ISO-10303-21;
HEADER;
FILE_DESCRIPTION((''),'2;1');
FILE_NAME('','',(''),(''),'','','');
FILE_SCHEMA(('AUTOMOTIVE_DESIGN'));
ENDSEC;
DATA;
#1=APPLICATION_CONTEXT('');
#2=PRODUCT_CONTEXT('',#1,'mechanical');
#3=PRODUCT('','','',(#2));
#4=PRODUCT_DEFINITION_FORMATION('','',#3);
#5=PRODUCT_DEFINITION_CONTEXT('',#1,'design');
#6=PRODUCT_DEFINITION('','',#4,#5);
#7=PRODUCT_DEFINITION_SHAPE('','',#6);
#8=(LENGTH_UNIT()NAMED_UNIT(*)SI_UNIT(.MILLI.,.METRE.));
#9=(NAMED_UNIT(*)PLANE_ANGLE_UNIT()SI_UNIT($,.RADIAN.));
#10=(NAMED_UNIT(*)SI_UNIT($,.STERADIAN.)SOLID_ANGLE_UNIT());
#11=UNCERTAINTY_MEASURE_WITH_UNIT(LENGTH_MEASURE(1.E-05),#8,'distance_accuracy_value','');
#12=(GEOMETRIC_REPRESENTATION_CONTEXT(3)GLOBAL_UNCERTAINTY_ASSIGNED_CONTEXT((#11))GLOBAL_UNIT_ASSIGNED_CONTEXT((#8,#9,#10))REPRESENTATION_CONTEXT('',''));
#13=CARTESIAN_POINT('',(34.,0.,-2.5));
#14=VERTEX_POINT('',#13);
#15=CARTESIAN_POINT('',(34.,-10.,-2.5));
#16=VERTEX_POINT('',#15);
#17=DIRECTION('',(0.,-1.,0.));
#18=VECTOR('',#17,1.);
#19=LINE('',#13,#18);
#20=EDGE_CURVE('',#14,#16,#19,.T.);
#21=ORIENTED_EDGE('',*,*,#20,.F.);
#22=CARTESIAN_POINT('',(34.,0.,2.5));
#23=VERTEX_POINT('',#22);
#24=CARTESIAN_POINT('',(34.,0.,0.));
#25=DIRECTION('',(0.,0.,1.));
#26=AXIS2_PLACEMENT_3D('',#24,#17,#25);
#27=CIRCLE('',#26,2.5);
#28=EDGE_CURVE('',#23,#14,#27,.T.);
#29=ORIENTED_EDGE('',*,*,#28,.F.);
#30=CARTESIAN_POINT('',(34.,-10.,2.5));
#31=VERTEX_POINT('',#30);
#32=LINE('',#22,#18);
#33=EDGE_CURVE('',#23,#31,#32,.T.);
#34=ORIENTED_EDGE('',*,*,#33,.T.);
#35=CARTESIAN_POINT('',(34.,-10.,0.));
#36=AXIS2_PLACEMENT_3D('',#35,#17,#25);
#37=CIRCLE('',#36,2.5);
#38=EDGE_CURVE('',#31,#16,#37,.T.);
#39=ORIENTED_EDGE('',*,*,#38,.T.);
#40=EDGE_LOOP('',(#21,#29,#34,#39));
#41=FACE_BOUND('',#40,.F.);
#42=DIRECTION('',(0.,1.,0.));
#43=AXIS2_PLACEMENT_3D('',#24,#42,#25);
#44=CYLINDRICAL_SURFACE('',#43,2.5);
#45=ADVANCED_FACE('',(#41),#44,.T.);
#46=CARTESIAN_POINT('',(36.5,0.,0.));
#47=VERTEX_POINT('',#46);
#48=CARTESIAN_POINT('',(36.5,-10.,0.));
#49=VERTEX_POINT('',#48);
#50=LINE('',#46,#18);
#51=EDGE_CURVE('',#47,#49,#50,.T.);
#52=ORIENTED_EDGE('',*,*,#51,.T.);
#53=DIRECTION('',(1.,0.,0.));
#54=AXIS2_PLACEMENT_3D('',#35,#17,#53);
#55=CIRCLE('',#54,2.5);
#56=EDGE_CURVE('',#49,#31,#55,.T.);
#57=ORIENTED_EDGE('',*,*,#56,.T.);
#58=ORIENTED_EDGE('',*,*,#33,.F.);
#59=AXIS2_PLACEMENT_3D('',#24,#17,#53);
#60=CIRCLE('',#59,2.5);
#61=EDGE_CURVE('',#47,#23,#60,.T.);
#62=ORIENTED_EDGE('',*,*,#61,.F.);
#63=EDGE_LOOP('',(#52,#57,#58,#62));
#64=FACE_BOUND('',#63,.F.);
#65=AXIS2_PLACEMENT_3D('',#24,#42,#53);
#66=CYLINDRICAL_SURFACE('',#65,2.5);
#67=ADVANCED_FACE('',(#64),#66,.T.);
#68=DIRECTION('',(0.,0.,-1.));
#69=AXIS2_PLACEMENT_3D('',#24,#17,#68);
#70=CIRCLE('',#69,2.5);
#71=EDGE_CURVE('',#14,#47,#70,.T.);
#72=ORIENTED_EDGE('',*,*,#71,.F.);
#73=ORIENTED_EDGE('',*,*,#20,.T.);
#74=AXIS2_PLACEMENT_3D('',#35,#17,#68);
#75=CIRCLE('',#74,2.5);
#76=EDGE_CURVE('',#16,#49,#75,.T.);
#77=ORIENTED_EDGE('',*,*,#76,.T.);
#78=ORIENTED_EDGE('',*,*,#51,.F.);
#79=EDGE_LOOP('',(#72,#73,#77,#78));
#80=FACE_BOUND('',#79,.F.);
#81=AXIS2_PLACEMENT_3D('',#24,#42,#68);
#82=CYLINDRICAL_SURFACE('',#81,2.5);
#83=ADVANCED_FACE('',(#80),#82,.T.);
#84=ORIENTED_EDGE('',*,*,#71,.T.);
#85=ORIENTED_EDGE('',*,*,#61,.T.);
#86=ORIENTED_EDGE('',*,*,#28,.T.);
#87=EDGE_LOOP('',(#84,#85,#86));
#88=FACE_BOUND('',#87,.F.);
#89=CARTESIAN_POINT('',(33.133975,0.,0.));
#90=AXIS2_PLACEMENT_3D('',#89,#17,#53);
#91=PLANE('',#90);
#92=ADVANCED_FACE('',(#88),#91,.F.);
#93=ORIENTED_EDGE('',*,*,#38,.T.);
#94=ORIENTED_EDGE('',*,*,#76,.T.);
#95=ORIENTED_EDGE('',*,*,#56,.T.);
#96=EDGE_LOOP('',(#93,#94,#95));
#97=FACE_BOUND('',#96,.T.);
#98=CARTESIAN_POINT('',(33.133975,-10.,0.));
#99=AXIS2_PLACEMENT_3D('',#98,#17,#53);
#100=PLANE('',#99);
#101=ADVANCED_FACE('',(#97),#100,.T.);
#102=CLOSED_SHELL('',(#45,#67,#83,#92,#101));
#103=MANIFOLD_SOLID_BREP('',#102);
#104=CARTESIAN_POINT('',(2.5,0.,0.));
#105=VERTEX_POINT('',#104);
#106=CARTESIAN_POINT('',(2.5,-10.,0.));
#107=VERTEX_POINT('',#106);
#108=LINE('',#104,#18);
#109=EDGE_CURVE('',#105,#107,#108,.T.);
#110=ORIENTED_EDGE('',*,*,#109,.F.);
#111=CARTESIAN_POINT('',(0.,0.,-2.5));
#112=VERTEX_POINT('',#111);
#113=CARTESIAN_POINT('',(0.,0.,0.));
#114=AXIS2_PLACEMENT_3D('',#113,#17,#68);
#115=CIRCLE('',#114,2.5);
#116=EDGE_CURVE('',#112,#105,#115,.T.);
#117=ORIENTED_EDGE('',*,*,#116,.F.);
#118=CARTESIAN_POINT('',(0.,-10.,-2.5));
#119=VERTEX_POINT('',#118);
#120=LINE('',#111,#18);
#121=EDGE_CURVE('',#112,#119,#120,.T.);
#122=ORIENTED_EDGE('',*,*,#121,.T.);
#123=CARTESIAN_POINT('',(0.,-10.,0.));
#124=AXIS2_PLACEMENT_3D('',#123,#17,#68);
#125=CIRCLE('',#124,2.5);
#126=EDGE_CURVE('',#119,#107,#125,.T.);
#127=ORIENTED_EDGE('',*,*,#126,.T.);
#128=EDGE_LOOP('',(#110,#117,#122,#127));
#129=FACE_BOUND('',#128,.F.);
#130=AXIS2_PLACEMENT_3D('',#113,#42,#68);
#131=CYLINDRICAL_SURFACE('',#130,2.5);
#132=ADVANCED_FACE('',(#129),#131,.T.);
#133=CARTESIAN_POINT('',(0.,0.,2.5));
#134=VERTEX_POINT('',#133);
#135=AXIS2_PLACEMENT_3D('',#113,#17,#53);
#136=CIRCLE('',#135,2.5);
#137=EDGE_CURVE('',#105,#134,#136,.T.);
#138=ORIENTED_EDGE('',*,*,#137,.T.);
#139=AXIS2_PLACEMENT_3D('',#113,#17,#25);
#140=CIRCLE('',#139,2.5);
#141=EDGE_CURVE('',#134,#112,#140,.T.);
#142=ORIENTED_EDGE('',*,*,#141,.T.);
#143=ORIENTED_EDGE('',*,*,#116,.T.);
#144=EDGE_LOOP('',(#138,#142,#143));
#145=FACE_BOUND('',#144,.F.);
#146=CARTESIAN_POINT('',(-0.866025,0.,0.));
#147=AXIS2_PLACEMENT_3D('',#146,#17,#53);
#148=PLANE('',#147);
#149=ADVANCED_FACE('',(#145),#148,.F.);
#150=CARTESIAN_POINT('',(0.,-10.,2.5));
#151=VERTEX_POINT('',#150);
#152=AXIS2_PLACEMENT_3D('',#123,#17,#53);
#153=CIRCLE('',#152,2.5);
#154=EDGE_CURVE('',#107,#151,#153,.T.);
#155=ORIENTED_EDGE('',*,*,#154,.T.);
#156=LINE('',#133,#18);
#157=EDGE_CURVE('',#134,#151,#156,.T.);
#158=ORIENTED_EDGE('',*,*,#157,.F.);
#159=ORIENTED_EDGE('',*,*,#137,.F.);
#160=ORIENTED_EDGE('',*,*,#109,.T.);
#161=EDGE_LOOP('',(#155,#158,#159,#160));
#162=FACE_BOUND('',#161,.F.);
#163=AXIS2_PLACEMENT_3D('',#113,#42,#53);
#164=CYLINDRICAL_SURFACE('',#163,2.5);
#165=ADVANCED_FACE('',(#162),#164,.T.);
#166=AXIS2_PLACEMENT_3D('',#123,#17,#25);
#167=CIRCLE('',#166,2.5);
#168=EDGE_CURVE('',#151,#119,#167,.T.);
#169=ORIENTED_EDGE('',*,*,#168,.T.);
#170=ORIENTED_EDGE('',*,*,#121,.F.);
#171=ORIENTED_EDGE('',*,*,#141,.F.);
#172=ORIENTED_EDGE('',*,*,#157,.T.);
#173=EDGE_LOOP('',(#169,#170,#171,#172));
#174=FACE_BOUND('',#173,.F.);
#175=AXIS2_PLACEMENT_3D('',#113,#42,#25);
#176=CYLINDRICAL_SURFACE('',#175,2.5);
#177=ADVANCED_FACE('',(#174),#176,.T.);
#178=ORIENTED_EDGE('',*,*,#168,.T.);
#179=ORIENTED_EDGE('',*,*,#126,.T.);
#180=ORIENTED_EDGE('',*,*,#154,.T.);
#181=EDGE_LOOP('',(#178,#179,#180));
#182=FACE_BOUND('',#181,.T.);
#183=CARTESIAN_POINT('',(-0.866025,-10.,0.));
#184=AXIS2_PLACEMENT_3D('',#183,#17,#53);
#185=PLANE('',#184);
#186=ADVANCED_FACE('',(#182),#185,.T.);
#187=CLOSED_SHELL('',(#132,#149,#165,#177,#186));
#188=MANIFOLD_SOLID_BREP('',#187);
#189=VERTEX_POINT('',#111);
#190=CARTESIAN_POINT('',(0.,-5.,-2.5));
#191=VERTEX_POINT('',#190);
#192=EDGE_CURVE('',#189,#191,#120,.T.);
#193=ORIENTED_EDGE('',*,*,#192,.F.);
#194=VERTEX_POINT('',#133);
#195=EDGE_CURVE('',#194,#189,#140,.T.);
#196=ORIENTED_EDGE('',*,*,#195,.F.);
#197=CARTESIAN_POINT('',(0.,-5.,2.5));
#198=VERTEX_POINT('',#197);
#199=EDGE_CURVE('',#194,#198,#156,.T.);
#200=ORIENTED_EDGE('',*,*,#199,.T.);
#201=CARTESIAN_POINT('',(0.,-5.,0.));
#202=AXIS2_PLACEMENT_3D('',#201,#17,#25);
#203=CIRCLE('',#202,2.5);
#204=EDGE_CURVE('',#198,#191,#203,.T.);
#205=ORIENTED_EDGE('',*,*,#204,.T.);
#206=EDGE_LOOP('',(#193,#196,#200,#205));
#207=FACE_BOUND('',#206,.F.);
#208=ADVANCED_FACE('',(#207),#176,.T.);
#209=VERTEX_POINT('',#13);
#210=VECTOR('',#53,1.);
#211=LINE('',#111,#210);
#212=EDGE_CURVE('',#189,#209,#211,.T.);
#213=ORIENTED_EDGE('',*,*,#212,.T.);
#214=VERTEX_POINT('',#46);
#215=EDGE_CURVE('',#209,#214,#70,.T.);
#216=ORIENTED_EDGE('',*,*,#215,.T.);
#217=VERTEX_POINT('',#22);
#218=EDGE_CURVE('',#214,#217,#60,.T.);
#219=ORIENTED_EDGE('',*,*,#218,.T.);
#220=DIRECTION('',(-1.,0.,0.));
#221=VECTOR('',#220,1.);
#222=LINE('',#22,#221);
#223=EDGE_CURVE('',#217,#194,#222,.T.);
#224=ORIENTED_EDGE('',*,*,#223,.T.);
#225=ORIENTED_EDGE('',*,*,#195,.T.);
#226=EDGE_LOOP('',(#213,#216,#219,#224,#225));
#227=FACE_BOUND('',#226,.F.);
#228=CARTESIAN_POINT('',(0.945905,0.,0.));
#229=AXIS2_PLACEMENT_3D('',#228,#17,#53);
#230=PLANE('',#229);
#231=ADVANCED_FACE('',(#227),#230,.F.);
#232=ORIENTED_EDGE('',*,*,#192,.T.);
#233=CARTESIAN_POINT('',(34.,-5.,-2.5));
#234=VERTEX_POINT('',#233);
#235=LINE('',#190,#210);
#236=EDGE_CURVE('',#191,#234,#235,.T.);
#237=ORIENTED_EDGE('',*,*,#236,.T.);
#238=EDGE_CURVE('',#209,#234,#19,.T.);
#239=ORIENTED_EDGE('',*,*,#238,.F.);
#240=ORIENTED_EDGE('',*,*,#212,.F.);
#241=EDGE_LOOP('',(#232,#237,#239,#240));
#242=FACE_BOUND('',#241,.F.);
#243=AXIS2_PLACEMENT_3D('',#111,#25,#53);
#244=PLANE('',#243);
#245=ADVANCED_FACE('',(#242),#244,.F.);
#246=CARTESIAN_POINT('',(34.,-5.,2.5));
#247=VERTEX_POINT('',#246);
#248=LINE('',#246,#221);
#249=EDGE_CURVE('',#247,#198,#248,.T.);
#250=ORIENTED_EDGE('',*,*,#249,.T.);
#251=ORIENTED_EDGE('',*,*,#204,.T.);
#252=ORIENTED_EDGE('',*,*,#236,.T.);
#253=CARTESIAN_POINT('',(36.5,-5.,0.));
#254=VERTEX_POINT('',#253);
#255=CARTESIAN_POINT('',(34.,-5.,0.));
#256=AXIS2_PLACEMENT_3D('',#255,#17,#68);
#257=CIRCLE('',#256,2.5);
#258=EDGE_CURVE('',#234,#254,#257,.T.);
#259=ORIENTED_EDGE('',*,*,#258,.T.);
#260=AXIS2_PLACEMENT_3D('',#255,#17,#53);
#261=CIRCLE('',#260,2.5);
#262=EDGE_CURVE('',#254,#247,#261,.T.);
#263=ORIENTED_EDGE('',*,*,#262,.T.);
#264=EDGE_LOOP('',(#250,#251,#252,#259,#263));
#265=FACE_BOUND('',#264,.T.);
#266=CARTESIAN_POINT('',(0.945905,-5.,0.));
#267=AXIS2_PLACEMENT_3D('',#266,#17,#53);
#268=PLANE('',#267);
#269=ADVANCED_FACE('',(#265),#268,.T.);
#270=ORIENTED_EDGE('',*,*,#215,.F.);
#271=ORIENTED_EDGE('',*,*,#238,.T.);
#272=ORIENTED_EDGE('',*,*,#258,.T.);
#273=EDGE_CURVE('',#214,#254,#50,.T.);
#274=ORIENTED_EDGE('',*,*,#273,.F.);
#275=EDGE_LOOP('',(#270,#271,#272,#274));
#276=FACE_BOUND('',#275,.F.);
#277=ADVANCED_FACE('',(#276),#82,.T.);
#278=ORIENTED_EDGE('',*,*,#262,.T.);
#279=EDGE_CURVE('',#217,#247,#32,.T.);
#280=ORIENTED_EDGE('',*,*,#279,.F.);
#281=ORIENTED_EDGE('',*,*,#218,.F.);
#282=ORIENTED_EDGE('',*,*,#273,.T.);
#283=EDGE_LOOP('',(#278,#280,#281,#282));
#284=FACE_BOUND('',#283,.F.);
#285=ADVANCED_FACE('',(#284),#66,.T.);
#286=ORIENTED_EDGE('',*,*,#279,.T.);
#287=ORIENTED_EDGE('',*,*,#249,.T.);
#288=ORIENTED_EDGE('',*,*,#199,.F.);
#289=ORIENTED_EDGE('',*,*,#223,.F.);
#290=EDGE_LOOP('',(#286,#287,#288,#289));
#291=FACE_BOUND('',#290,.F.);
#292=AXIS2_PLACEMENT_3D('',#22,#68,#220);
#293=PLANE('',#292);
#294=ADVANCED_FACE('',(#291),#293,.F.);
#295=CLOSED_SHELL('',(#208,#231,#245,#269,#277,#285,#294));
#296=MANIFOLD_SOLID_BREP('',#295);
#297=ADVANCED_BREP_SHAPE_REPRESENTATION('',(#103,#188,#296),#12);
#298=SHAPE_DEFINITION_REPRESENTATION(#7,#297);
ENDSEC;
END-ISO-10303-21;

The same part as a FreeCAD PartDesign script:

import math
import FreeCAD as App
import Part
import Sketcher

V = App.Vector
Q = App.Units.Quantity

doc = App.newDocument("Part")
params = doc.addObject("Spreadsheet::Sheet", "Params")
for row, (alias, value) in enumerate([
    ("sketch1_radius", "2.5 mm"),
    ("pad1_length", "10 mm"),
    ("sketch2_radius", "2.5 mm"),
    ("pad2_length", "10 mm"),
    ("sketch3_radius", "2.5 mm"),
    ("sketch3_width", "34 mm"),
    ("pad3_length", "5 mm"),
], start=1):
    params.set(f"A{row}", alias)
    params.set(f"B{row}", "=" + value)
    params.setAlias(f"B{row}", alias)

body = doc.addObject("PartDesign::Body", "Body")

# Sketch on XZ plane
sketch1 = doc.addObject("Sketcher::SketchObject", "Sketch")
body.addObject(sketch1)
sketch1.AttachmentSupport = (doc.XZ_Plane, [""])
sketch1.MapMode = "FlatFace"
sketch1.addGeometry([
    Part.ArcOfCircle(Part.Circle(V(0, 0, 0), V(0, 0, 1), 2.5), math.radians(90), math.radians(270)),
    Part.ArcOfCircle(Part.Circle(V(0, 0, 0), V(0, 0, 1), 2.5), math.radians(-90), math.radians(0)),
    Part.ArcOfCircle(Part.Circle(V(0, 0, 0), V(0, 0, 1), 2.5), math.radians(0), math.radians(90)),
], False)
sketch1.addConstraint([
    Sketcher.Constraint("Tangent", 0, 2, 1, 1),
    Sketcher.Constraint("Tangent", 1, 2, 2, 1),
    Sketcher.Constraint("Tangent", 2, 2, 0, 1),
    Sketcher.Constraint("Coincident", 0, 3, -1, 1),
    Sketcher.Constraint("PointOnObject", 0, 2, -2),
    Sketcher.Constraint("PointOnObject", 1, 2, -1),
    Sketcher.Constraint("PointOnObject", 2, 2, -2),
    Sketcher.Constraint("Radius", 0, Q("2.5 mm")),
])
sketch1.setExpression("Constraints[7]", "Params.sketch1_radius")
pad1 = doc.addObject("PartDesign::Pad", "Pad")
body.addObject(pad1)
pad1.Profile = sketch1
pad1.setExpression("Length", "Params.pad1_length")
body2 = doc.addObject("PartDesign::Body", "Body001")

# Sketch on XZ plane
sketch2 = doc.addObject("Sketcher::SketchObject", "Sketch001")
body2.addObject(sketch2)
sketch2.AttachmentSupport = (doc.getObject("XZ_Plane001"), [""])
sketch2.MapMode = "FlatFace"
sketch2.addGeometry([
    Part.ArcOfCircle(Part.Circle(V(34, 0, 0), V(0, 0, 1), 2.5), math.radians(90), math.radians(270)),
    Part.ArcOfCircle(Part.Circle(V(34, 0, 0), V(0, 0, 1), 2.5), math.radians(-90), math.radians(0)),
    Part.ArcOfCircle(Part.Circle(V(34, 0, 0), V(0, 0, 1), 2.5), math.radians(0), math.radians(90)),
], False)
sketch2.addConstraint([
    Sketcher.Constraint("Tangent", 0, 2, 1, 1),
    Sketcher.Constraint("Tangent", 1, 2, 2, 1),
    Sketcher.Constraint("Tangent", 2, 2, 0, 1),
    Sketcher.Constraint("Symmetric", 0, 2, 2, 2, -1),
    Sketcher.Constraint("PointOnObject", 1, 2, -1),
    Sketcher.Constraint("Vertical", 2, 3, 0, 2),
    Sketcher.Constraint("Radius", 0, Q("2.5 mm")),
    Sketcher.Constraint("DistanceX", -1, 1, 0, 3, Q("34 mm")),
])
sketch2.setExpression("Constraints[6]", "Params.sketch2_radius")
pad2 = doc.addObject("PartDesign::Pad", "Pad001")
body2.addObject(pad2)
pad2.Profile = sketch2
pad2.setExpression("Length", "Params.pad2_length")
body3 = doc.addObject("PartDesign::Body", "Body002")

# Sketch on XZ plane
sketch3 = doc.addObject("Sketcher::SketchObject", "Sketch002")
body3.addObject(sketch3)
sketch3.AttachmentSupport = (doc.getObject("XZ_Plane002"), [""])
sketch3.MapMode = "FlatFace"
sketch3.addGeometry([
    Part.LineSegment(V(0, -2.5, 0), V(34, -2.5, 0)),  # 0
    Part.ArcOfCircle(Part.Circle(V(34, 0, 0), V(0, 0, 1), 2.5), math.radians(-90), math.radians(0)),  # 1
    Part.ArcOfCircle(Part.Circle(V(34, 0, 0), V(0, 0, 1), 2.5), math.radians(0), math.radians(90)),  # 2
    Part.LineSegment(V(34, 2.5, 0), V(0, 2.5, 0)),  # 3
    Part.ArcOfCircle(Part.Circle(V(0, 0, 0), V(0, 0, 1), 2.5), math.radians(90), math.radians(270)),  # 4
], False)
sketch3.addConstraint([
    Sketcher.Constraint("Tangent", 0, 2, 1, 1),
    Sketcher.Constraint("Tangent", 1, 2, 2, 1),
    Sketcher.Constraint("Tangent", 2, 2, 3, 1),
    Sketcher.Constraint("Tangent", 3, 2, 4, 1),
    Sketcher.Constraint("Tangent", 4, 2, 0, 1),
    Sketcher.Constraint("Horizontal", 0),
    Sketcher.Constraint("Horizontal", 3),
    Sketcher.Constraint("Coincident", 4, 3, -1, 1),
    Sketcher.Constraint("Equal", 1, 2),
    Sketcher.Constraint("PointOnObject", 1, 2, -1),
    Sketcher.Constraint("Radius", 1, Q("2.5 mm")),
    Sketcher.Constraint("DistanceX", 0, 1, 0, 2, Q("34 mm")),
])
sketch3.setExpression("Constraints[10]", "Params.sketch3_radius")
sketch3.setExpression("Constraints[11]", "Params.sketch3_width")
pad3 = doc.addObject("PartDesign::Pad", "Pad002")
body3.addObject(pad3)
pad3.Profile = sketch3
pad3.setExpression("Length", "Params.pad3_length")

doc.recompute()
